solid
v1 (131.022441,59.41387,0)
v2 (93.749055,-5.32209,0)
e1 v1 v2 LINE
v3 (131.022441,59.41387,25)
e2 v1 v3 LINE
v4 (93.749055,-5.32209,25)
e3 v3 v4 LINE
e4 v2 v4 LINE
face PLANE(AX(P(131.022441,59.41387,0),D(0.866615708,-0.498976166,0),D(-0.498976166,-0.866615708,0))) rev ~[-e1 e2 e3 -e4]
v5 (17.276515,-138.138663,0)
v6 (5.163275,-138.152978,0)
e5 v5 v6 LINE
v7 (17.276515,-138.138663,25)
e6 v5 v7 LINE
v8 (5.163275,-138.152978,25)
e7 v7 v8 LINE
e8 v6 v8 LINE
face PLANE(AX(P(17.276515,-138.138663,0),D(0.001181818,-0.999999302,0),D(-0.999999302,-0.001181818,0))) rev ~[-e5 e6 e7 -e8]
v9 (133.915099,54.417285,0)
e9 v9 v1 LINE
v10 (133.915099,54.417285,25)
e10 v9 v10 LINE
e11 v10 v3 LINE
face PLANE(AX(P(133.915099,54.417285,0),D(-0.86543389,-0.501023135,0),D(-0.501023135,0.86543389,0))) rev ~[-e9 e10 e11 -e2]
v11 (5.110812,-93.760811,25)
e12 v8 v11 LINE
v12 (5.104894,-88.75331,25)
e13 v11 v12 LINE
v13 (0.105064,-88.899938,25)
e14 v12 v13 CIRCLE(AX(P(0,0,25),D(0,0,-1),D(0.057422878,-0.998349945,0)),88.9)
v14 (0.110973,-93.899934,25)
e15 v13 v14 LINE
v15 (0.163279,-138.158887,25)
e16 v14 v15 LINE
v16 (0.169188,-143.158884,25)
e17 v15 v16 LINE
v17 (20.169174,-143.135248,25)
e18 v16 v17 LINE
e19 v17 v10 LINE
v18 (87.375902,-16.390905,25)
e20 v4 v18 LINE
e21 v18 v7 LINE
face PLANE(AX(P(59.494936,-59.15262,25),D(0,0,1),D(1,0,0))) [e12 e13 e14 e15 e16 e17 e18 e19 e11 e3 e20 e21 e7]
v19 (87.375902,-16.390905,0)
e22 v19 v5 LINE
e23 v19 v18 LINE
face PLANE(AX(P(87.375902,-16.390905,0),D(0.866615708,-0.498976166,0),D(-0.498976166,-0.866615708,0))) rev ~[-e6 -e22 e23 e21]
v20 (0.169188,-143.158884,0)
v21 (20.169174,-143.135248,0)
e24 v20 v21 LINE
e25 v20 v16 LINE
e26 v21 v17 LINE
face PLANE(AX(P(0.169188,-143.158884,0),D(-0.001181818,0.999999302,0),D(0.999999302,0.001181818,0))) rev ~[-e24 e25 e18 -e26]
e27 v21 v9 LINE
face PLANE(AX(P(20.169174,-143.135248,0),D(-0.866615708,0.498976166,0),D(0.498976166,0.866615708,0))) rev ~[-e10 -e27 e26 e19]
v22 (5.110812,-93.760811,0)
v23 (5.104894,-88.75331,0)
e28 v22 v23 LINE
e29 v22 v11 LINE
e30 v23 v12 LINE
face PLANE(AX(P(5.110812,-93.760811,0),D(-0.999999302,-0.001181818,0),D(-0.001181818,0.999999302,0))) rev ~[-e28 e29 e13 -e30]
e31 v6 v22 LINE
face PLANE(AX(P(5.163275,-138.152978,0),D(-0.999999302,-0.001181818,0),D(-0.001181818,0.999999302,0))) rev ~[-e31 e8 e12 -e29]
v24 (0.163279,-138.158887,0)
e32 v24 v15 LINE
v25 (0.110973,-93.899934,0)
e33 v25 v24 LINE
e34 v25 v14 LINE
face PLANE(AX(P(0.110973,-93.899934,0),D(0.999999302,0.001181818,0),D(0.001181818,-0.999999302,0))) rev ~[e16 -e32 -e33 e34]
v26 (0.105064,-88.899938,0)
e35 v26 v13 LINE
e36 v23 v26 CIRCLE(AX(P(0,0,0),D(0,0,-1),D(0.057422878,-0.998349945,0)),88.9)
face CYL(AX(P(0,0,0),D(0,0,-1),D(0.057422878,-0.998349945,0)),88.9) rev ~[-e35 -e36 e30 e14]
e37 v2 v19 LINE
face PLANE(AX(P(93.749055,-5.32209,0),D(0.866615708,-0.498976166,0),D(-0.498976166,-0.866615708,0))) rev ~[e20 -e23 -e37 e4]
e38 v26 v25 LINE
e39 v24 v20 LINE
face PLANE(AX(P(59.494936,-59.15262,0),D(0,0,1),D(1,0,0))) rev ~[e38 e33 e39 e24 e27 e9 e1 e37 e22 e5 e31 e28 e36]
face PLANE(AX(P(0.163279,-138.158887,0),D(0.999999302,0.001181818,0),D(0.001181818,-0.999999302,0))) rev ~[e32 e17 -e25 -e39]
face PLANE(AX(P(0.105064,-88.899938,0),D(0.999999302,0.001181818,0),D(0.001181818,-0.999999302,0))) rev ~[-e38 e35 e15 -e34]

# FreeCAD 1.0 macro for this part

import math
import FreeCAD as App
import Part
import Sketcher
from FreeCAD import Vector
Q = App.Units.Quantity

doc = App.newDocument("Part")
body = doc.addObject("PartDesign::Body", "Body")

sketch1 = body.newObject("Sketcher::SketchObject", "Sketch")
sketch1.AttachmentSupport = (doc.getObject("XY_Plane"), [""])
sketch1.MapMode = "FlatFace"
sketch1.addGeometry(Part.LineSegment(Vector(133.9, 54.4, 0), Vector(131, 59.4, 0)), False)
sketch1.addGeometry(Part.LineSegment(Vector(131, 59.4, 0), Vector(93.7, -5.3, 0)), False)
sketch1.addGeometry(Part.LineSegment(Vector(93.7, -5.3, 0), Vector(87.4, -16.4, 0)), False)
sketch1.addGeometry(Part.LineSegment(Vector(87.4, -16.4, 0), Vector(17.3, -138.1, 0)), False)
sketch1.addGeometry(Part.LineSegment(Vector(17.3, -138.1, 0), Vector(5.2, -138.2, 0)), False)
sketch1.addGeometry(Part.LineSegment(Vector(5.2, -138.2, 0), Vector(5.1, -93.8, 0)), False)
sketch1.addGeometry(Part.LineSegment(Vector(5.1, -93.8, 0), Vector(5.1, -88.8, 0)), False)
sketch1.addGeometry(Part.ArcOfCircle(Part.Circle(Vector(0, 0, 0), Vector(0, 0, 1), 88.9), math.radians(-89.93), math.radians(-86.71)), False)
sketch1.addGeometry(Part.LineSegment(Vector(0.1, -88.9, 0), Vector(0.1, -93.9, 0)), False)
sketch1.addGeometry(Part.LineSegment(Vector(0.1, -93.9, 0), Vector(0.2, -138.2, 0)), False)
sketch1.addGeometry(Part.LineSegment(Vector(0.2, -138.2, 0), Vector(0.2, -143.2, 0)), False)
sketch1.addGeometry(Part.LineSegment(Vector(0.2, -143.2, 0), Vector(20.2, -143.1, 0)), False)
sketch1.addGeometry(Part.LineSegment(Vector(20.2, -143.1, 0), Vector(133.9, 54.4, 0)), False)
sketch1.addConstraint(Sketcher.Constraint("Coincident", 0, 2, 1, 1))
sketch1.addConstraint(Sketcher.Constraint("Coincident", 1, 2, 2, 1))
sketch1.addConstraint(Sketcher.Constraint("Coincident", 2, 2, 3, 1))
sketch1.addConstraint(Sketcher.Constraint("Coincident", 3, 2, 4, 1))
sketch1.addConstraint(Sketcher.Constraint("Coincident", 4, 2, 5, 1))
sketch1.addConstraint(Sketcher.Constraint("Coincident", 5, 2, 6, 1))
sketch1.addConstraint(Sketcher.Constraint("Coincident", 6, 2, 7, 2))
sketch1.addConstraint(Sketcher.Constraint("Coincident", 7, 1, 8, 1))
sketch1.addConstraint(Sketcher.Constraint("Coincident", 8, 2, 9, 1))
sketch1.addConstraint(Sketcher.Constraint("Coincident", 9, 2, 10, 1))
sketch1.addConstraint(Sketcher.Constraint("Coincident", 10, 2, 11, 1))
sketch1.addConstraint(Sketcher.Constraint("Coincident", 11, 2, 12, 1))
sketch1.addConstraint(Sketcher.Constraint("Coincident", 12, 2, 0, 1))
sketch1.addConstraint(Sketcher.Constraint("Coincident", 7, 3, -1, 1))
sketch1.addConstraint(Sketcher.Constraint("Parallel", 1, 2))
sketch1.addConstraint(Sketcher.Constraint("Parallel", 2, 3))
sketch1.addConstraint(Sketcher.Constraint("Perpendicular", 4, 5))
sketch1.addConstraint(Sketcher.Constraint("Parallel", 5, 6))
sketch1.addConstraint(Sketcher.Constraint("Parallel", 6, 8))
sketch1.addConstraint(Sketcher.Constraint("Parallel", 8, 9))
sketch1.addConstraint(Sketcher.Constraint("Parallel", 9, 10))
sketch1.addConstraint(Sketcher.Constraint("Perpendicular", 10, 11))
sketch1.addConstraint(Sketcher.Constraint("Parallel", 3, 12))
sketch1.addConstraint(Sketcher.Constraint("Equal", 8, 10))
sketch1.addConstraint(Sketcher.Constraint("Radius", 7, Q("88.9 mm")))
sketch1.addConstraint(Sketcher.Constraint("Distance", 8, Q("5 mm")))
sketch1.addConstraint(Sketcher.Constraint("Distance", 11, Q("20 mm")))
sketch1.addConstraint(Sketcher.Constraint("Distance", 5, Q("44.392199 mm")))
sketch1.addConstraint(Sketcher.Constraint("DistanceX", -1, 1, 2, 2, Q("87.375902 mm")))
sketch1.addConstraint(Sketcher.Constraint("DistanceX", -1, 1, 12, 2, Q("133.915099 mm")))
sketch1.addConstraint(Sketcher.Constraint("DistanceY", 5, 2, 6, 2, Q("5.0075 mm")))
sketch1.addConstraint(Sketcher.Constraint("DistanceX", 4, 2, 11, 2, Q("15.005899 mm")))
sketch1.addConstraint(Sketcher.Constraint("Distance", 1, Q("74.699731 mm")))
sketch1.addConstraint(Sketcher.Constraint("Distance", 2, Q("12.77246 mm")))
sketch1.addConstraint(Sketcher.Constraint("Distance", 4, Q("12.113249 mm")))
sketch1.addConstraint(Sketcher.Constraint("DistanceX", -1, 1, 0, 2, Q("131.022441 mm")))
sketch1.addConstraint(Sketcher.Constraint("DistanceY", -1, 1, 0, 2, Q("59.41387 mm")))
sketch1.addConstraint(Sketcher.Constraint("DistanceY", 4, 2, -1, 1, Q("138.152978 mm")))
sketch1.addConstraint(Sketcher.Constraint("DistanceY", 9, 2, 4, 2, Q("0.005909 mm")))
pad1 = body.newObject("PartDesign::Pad", "Pad")
pad1.Profile = sketch1
pad1.Length = 25

doc.recompute()
